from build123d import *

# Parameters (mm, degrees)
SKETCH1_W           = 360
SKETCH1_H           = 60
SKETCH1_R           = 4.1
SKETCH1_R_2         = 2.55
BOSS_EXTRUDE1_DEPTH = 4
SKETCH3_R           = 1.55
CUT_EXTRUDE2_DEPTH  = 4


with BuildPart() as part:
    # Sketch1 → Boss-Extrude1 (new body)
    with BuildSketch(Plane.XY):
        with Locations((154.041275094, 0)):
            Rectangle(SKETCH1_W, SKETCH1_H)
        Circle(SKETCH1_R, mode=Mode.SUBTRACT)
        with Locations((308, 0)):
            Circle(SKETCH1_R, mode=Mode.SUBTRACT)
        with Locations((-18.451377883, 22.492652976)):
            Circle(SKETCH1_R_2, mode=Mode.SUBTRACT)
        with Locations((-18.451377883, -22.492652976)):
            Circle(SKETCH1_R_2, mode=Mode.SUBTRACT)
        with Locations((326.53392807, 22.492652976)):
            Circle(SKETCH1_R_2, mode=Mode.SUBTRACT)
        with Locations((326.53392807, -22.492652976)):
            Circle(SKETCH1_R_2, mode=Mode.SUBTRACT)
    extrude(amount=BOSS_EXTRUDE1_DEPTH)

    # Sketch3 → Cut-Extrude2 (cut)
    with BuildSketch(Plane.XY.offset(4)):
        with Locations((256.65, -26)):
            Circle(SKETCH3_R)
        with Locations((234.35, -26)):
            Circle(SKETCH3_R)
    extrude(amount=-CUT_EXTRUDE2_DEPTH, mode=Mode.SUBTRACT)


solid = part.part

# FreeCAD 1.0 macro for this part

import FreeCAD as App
import Part
import Sketcher
from FreeCAD import Vector


def add_polygon(sketch, points):
    """Adds a closed chain of lines whose ends are joined by coincident constraints."""
    first, n = sketch.GeometryCount, len(points)
    for a, b in zip(points, points[1:] + points[:1]):
        sketch.addGeometry(Part.LineSegment(App.Vector(*a, 0), App.Vector(*b, 0)), False)
    for i in range(n):
        sketch.addConstraint(Sketcher.Constraint("Coincident", first + i, 2, first + (i + 1) % n, 1))

doc = App.newDocument("Part")
params = doc.addObject("Spreadsheet::Sheet", "Params")
for row, (alias, value) in enumerate([
    ("sketch1_diameter", "5.1 mm"),
    ("sketch1_diameter2", "8.2 mm"),
    ("sketch1_width", "360 mm"),
    ("sketch1_height", "60 mm"),
    ("pad1_length", "4 mm"),
    ("sketch2_diameter", "3.1 mm"),
    ("pocket1_length", "4 mm"),
], start=1):
    params.set(f"A{row}", alias)
    params.set(f"B{row}", "=" + value)
    params.setAlias(f"B{row}", alias)

body = doc.addObject("PartDesign::Body", "Body")

# Sketch on XY plane
sketch1 = body.newObject("Sketcher::SketchObject", "Sketch")
sketch1.AttachmentSupport = (doc.getObject("XY_Plane"), [""])
sketch1.MapMode = "FlatFace"
add_polygon(sketch1, [(-26, 30), (-26, -30), (334, -30), (334, 30)])  # lines 0-3
sketch1.addGeometry(Part.Circle(Vector(-18.5, -22.5, 0), Vector(0, 0, 1), 2.5), False)  # 4
sketch1.addGeometry(Part.Circle(Vector(326.5, -22.5, 0), Vector(0, 0, 1), 2.5), False)  # 5
sketch1.addGeometry(Part.Circle(Vector(0, 0, 0), Vector(0, 0, 1), 4.1), False)  # 6
sketch1.addGeometry(Part.Circle(Vector(-18.5, 22.5, 0), Vector(0, 0, 1), 2.5), False)  # 7
sketch1.addGeometry(Part.Circle(Vector(308, 0, 0), Vector(0, 0, 1), 4.1), False)  # 8
sketch1.addGeometry(Part.Circle(Vector(326.5, 22.5, 0), Vector(0, 0, 1), 2.5), False)  # 9
sketch1.addConstraint(Sketcher.Constraint("Vertical", 0))
sketch1.addConstraint(Sketcher.Constraint("Horizontal", 1))
sketch1.addConstraint(Sketcher.Constraint("Vertical", 2))
sketch1.addConstraint(Sketcher.Constraint("Horizontal", 3))
sketch1.addConstraint(Sketcher.Constraint("Coincident", 6, 3, -1, 1))
sketch1.addConstraint(Sketcher.Constraint("Equal", 4, 5))
sketch1.addConstraint(Sketcher.Constraint("Equal", 5, 7))
sketch1.addConstraint(Sketcher.Constraint("Equal", 6, 8))
sketch1.addConstraint(Sketcher.Constraint("Equal", 7, 9))
sketch1.addConstraint(Sketcher.Constraint("Symmetric", 4, 3, 7, 3, -1))
sketch1.addConstraint(Sketcher.Constraint("Symmetric", 5, 3, 9, 3, -1))
sketch1.addConstraint(Sketcher.Constraint("PointOnObject", 8, 3, -1))
sketch1.addConstraint(Sketcher.Constraint("Horizontal", 4, 3, 5, 3))
sketch1.addConstraint(Sketcher.Constraint("Diameter", 4, 5.1))
sketch1.addConstraint(Sketcher.Constraint("Diameter", 6, 8.2))
sketch1.addConstraint(Sketcher.Constraint("DistanceX", 1, 1, 1, 2, 360.0))
sketch1.addConstraint(Sketcher.Constraint("DistanceY", 0, 2, 0, 1, 60.0))
sketch1.addConstraint(Sketcher.Constraint("DistanceX", -1, 1, 8, 3, 308.0))
sketch1.addConstraint(Sketcher.Constraint("DistanceY", 0, 2, -1, 1, 30.0))
sketch1.addConstraint(Sketcher.Constraint("DistanceX", -1, 1, 5, 3, 326.533928))
sketch1.addConstraint(Sketcher.Constraint("DistanceX", 4, 3, -1, 1, 18.451378))
sketch1.addConstraint(Sketcher.Constraint("DistanceY", 4, 3, -1, 1, 22.492653))
sketch1.addConstraint(Sketcher.Constraint("DistanceX", 0, 2, -1, 1, 25.958725))
sketch1.setExpression("Constraints[17]", "Params.sketch1_diameter")
sketch1.setExpression("Constraints[18]", "Params.sketch1_diameter2")
sketch1.setExpression("Constraints[19]", "Params.sketch1_width")
sketch1.setExpression("Constraints[20]", "Params.sketch1_height")
pad1 = body.newObject("PartDesign::Pad", "Pad")
pad1.Profile = sketch1
pad1.setExpression("Length", "Params.pad1_length")

# Sketch on XY plane
sketch2 = body.newObject("Sketcher::SketchObject", "Sketch001")
sketch2.AttachmentSupport = (doc.getObject("XY_Plane"), [""])
sketch2.MapMode = "FlatFace"
sketch2.AttachmentOffset = App.Placement(Vector(0, 0, 4), App.Rotation())
sketch2.addGeometry(Part.Circle(Vector(256.6, -26, 0), Vector(0, 0, 1), 1.6), False)
sketch2.addGeometry(Part.Circle(Vector(234.3, -26, 0), Vector(0, 0, 1), 1.6), False)
sketch2.addConstraint(Sketcher.Constraint("Equal", 0, 1))
sketch2.addConstraint(Sketcher.Constraint("Horizontal", 0, 3, 1, 3))
sketch2.addConstraint(Sketcher.Constraint("Diameter", 0, 3.1))
sketch2.addConstraint(Sketcher.Constraint("DistanceY", 0, 3, -1, 1, 26.0))
sketch2.addConstraint(Sketcher.Constraint("DistanceX", 1, 3, 0, 3, 22.3))
sketch2.addConstraint(Sketcher.Constraint("DistanceX", -1, 1, 0, 3, 256.65))
sketch2.setExpression("Constraints[2]", "Params.sketch2_diameter")
pocket1 = body.newObject("PartDesign::Pocket", "Pocket")
pocket1.Profile = sketch2
pocket1.setExpression("Length", "Params.pocket1_length")

doc.recompute()
